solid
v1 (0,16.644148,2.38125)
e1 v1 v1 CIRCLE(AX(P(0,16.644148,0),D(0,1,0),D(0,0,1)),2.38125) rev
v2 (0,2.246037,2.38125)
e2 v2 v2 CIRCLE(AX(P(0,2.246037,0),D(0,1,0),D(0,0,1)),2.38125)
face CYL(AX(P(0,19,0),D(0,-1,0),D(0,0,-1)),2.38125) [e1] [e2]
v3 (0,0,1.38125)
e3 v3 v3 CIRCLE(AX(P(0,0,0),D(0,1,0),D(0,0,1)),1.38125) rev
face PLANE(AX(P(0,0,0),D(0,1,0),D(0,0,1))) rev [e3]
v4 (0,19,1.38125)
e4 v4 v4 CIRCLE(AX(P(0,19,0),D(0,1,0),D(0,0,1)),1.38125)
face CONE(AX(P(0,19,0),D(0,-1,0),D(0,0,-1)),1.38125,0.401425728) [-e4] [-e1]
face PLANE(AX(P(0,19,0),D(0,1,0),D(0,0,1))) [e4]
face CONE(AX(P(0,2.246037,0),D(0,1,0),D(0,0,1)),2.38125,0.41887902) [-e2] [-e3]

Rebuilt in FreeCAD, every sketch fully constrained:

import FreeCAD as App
import Part
import Sketcher


def edges_at(feature, points):
    """Names of the edges that pass closest to the given points."""
    edges = feature.Shape.Edges
    near = lambda p: min(range(len(edges)), key=lambda i: edges[i].distToShape(Part.Vertex(*p))[0])
    return sorted({f"Edge{near(p) + 1}" for p in points})

doc = App.newDocument("Part")
params = doc.addObject("Spreadsheet::Sheet", "Params")
for row, (alias, value) in enumerate([
    ("pad1_length", "19 mm"),
    ("chamfer_size", "1 mm"),
    ("chamfer_size2", "2.246037 mm"),
    ("chamfer2_size", "1 mm"),
    ("chamfer2_size2", "2.355852 mm"),
], start=1):
    params.set(f"A{row}", alias)
    params.set(f"B{row}", "=" + value)
    params.setAlias(f"B{row}", alias)

body = doc.addObject("PartDesign::Body", "Body")

sketch1 = doc.addObject("Sketcher::SketchObject", "Sketch")
body.addObject(sketch1)
sketch1.AttachmentSupport = (doc.XZ_Plane, [""])
sketch1.MapMode = "FlatFace"
sketch1.addGeometry(Part.Circle(App.Vector(0, 0, 0), App.Vector(0, 0, 1), 2.4), False)
sketch1.addConstraint(Sketcher.Constraint("Coincident", 0, 3, -1, 1))
sketch1.addConstraint(Sketcher.Constraint("Diameter", 0, 4.7625))
pad1 = doc.addObject("PartDesign::Pad", "Pad")
body.addObject(pad1)
pad1.Profile = sketch1
pad1.setExpression("Length", "Params.pad1_length")
pad1.Reversed = True
doc.recompute()

chamfer = doc.addObject("PartDesign::Chamfer", "Chamfer")
body.addObject(chamfer)
chamfer.Base = (pad1, edges_at(pad1, [(0, 0, -2.381)]))
chamfer.ChamferType = "Two distances"
chamfer.setExpression("Size", "Params.chamfer_size")
chamfer.setExpression("Size2", "Params.chamfer_size2")
chamfer.FlipDirection = True
doc.recompute()

chamfer2 = doc.addObject("PartDesign::Chamfer", "Chamfer001")
body.addObject(chamfer2)
chamfer2.Base = (chamfer, edges_at(chamfer, [(0, 19, -2.381)]))
chamfer2.ChamferType = "Two distances"
chamfer2.setExpression("Size", "Params.chamfer2_size")
chamfer2.setExpression("Size2", "Params.chamfer2_size2")
chamfer2.FlipDirection = True

doc.recompute()
